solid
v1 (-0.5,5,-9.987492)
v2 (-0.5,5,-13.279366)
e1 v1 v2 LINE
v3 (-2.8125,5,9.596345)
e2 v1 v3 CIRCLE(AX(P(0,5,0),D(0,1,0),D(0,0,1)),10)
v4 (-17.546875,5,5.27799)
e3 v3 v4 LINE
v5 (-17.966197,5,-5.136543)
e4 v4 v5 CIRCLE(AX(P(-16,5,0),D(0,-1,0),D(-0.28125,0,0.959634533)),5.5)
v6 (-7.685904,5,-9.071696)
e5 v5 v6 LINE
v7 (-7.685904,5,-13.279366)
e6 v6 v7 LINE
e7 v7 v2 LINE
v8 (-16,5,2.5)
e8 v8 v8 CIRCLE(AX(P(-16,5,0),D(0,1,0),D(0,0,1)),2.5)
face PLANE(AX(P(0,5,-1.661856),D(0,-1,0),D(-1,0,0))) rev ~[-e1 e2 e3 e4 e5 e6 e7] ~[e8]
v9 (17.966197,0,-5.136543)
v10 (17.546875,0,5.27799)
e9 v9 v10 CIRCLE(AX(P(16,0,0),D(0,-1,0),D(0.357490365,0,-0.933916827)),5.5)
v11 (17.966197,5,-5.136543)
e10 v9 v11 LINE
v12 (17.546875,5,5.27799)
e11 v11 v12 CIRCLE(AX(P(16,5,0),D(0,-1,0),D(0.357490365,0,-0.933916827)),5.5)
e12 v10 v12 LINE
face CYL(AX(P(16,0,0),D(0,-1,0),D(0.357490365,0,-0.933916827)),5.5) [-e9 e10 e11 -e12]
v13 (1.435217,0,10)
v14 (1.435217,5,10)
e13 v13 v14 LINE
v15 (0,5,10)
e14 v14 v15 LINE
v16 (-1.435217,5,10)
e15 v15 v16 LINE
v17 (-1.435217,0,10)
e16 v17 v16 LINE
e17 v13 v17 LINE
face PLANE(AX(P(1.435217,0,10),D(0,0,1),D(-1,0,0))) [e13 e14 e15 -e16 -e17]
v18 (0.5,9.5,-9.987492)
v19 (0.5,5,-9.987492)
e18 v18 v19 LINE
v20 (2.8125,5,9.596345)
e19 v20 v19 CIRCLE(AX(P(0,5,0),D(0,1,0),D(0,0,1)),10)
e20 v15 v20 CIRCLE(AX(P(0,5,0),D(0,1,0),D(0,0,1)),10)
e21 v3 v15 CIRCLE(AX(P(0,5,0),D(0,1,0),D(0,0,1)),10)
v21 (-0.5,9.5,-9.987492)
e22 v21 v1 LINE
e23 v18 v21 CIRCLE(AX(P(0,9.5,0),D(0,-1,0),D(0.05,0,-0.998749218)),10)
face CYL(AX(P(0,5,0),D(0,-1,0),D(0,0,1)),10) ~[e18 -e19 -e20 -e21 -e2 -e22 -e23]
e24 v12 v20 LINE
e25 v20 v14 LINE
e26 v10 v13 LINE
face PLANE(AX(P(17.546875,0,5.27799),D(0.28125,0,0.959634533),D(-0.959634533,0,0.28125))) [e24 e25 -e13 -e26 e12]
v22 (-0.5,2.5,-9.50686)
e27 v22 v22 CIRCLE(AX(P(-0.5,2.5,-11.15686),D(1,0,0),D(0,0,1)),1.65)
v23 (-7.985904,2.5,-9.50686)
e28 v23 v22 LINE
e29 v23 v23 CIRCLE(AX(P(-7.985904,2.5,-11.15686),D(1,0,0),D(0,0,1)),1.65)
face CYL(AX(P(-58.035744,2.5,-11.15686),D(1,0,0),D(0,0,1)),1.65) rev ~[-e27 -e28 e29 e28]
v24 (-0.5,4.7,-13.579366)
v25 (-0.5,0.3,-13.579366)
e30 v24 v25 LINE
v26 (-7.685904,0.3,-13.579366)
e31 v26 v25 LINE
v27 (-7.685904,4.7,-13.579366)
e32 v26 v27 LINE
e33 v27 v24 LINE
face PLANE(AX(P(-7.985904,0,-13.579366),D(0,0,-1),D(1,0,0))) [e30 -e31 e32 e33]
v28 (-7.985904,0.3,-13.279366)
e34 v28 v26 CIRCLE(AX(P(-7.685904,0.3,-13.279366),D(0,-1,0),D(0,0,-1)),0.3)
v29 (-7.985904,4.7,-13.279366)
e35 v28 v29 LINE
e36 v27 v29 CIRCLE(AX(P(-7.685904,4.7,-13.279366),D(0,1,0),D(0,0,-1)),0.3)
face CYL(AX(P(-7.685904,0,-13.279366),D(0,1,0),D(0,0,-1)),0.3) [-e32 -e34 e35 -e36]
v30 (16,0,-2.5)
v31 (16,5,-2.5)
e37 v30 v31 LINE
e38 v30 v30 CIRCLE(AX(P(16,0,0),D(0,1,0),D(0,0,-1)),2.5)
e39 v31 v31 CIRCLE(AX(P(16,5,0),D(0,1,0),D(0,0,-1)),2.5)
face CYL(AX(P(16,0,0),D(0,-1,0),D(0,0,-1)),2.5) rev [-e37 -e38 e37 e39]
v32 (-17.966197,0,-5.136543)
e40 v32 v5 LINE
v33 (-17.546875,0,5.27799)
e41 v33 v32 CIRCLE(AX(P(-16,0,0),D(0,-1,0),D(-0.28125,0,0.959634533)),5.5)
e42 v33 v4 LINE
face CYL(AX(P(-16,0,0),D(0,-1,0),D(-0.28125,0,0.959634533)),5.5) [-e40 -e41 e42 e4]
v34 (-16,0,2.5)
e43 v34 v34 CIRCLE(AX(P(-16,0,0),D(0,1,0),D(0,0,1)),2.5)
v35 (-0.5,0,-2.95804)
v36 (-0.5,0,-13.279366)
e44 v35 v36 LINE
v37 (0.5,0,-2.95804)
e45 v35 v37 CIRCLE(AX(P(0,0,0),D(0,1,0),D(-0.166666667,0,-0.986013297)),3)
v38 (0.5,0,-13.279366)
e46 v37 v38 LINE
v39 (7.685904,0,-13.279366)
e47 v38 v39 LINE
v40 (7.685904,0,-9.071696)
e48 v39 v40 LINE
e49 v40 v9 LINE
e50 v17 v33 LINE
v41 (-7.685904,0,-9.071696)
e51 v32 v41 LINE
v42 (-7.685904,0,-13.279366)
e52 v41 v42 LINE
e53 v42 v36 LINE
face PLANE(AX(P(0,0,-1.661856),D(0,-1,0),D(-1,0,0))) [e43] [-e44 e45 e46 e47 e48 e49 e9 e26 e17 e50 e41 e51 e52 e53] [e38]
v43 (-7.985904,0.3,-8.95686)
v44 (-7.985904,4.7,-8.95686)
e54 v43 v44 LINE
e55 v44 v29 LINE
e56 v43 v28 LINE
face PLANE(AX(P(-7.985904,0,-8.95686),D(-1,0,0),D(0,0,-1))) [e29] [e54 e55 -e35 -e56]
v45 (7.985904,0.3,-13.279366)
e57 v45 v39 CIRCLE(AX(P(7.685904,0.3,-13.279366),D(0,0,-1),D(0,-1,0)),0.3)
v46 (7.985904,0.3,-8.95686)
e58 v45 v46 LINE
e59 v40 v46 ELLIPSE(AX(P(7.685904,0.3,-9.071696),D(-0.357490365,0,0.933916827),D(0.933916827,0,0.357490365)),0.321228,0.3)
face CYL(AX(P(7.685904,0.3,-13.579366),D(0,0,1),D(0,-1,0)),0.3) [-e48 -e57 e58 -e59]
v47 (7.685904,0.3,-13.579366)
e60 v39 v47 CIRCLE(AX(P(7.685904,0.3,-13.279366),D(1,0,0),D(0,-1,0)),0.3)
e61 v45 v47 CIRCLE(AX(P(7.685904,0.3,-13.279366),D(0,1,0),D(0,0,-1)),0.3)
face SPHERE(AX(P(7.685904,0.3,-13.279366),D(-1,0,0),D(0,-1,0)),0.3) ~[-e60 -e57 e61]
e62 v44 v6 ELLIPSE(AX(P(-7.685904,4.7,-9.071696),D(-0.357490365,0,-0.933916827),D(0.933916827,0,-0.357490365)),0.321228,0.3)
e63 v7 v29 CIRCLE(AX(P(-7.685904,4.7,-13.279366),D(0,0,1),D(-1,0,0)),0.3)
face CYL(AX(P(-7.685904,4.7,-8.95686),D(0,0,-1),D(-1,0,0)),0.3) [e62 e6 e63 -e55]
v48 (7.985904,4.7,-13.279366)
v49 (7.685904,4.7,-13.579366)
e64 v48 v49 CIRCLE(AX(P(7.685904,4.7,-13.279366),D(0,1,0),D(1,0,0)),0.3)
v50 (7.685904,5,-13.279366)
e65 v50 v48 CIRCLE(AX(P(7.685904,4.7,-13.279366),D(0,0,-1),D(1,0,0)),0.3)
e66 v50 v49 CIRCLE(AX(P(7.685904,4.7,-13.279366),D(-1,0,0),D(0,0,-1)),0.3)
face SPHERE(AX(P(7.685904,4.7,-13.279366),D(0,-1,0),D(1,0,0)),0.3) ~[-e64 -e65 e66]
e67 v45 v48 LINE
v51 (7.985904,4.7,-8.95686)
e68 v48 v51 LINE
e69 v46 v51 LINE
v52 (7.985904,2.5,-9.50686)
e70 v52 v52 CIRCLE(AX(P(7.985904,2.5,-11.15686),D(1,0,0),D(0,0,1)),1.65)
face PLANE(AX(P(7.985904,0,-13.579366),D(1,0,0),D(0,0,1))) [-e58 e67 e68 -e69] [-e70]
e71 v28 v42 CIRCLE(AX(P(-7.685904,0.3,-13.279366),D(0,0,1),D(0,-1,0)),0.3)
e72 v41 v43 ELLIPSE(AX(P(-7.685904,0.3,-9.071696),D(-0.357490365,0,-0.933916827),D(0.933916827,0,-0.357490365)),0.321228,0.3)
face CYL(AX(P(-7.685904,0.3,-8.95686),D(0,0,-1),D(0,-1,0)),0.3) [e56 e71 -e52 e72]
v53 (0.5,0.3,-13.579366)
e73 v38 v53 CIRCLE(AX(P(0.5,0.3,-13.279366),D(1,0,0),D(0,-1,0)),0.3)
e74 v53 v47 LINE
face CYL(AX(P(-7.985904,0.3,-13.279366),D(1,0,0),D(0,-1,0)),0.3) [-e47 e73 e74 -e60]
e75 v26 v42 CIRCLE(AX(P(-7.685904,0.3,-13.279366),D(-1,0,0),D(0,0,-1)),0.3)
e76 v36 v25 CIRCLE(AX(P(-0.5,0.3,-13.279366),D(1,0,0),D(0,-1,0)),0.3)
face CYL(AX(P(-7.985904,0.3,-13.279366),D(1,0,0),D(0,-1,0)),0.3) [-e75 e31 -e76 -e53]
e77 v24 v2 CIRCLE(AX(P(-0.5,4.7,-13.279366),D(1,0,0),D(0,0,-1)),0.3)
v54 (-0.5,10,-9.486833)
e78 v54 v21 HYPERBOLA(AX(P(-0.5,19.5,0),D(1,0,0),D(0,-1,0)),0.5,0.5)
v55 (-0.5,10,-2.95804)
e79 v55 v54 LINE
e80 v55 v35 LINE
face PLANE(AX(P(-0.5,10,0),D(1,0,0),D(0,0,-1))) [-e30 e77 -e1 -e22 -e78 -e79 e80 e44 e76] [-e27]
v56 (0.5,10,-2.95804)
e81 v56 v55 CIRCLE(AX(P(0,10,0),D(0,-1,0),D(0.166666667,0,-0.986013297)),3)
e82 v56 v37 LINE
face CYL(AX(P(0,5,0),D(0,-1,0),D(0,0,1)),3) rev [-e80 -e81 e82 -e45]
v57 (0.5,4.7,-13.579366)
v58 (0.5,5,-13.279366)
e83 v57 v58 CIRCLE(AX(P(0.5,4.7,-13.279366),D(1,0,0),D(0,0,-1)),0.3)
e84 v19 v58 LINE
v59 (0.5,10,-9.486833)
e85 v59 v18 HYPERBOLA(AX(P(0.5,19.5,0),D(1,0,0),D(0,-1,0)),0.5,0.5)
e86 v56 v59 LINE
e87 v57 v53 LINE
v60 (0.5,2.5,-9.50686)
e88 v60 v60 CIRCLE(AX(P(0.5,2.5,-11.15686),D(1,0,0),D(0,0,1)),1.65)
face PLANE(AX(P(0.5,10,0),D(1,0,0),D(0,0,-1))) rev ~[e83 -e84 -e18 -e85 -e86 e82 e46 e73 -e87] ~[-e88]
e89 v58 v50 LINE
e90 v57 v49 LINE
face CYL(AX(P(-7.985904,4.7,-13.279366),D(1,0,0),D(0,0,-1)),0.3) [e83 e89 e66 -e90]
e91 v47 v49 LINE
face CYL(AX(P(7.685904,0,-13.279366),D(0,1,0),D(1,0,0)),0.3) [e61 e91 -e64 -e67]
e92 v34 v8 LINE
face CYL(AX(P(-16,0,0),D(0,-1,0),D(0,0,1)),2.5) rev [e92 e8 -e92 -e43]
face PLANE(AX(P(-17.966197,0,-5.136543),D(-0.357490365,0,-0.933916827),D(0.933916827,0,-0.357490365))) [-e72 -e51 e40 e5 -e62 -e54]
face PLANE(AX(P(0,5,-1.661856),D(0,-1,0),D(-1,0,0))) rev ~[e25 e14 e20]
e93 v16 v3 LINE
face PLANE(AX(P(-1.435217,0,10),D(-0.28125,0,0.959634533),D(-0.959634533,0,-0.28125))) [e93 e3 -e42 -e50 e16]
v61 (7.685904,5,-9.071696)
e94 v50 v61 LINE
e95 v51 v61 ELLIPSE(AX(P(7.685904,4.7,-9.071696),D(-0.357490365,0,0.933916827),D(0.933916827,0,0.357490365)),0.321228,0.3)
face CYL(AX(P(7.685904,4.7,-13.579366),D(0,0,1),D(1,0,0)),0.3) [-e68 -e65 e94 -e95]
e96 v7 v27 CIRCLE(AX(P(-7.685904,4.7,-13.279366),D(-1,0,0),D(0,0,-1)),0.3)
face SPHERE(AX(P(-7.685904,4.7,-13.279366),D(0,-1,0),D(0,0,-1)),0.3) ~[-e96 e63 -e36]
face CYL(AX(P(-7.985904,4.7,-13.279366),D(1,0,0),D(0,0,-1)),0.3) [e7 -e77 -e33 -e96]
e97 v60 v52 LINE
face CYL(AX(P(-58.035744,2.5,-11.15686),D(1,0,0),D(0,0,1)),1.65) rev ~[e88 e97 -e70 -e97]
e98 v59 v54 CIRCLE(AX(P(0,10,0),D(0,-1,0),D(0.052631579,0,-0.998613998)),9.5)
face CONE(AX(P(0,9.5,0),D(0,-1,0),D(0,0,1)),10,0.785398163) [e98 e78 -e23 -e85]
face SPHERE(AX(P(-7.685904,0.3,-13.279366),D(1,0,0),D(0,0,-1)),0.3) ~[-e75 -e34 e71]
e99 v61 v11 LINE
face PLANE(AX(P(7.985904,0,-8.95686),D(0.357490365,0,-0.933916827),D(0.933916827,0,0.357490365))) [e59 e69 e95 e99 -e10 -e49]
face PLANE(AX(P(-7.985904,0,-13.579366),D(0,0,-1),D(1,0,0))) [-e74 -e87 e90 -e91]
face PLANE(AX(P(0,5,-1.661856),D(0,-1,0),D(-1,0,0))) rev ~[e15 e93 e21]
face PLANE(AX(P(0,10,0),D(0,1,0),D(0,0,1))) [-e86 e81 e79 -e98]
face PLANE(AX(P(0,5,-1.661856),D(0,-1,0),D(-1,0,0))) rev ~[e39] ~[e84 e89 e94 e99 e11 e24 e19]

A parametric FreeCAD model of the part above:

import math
import FreeCAD as App
import Part
import Sketcher
Q = App.Units.Quantity


def edges_at(feature, points):
    """Names of the edges that pass closest to the given points."""
    edges = feature.Shape.Edges
    near = lambda p: min(range(len(edges)), key=lambda i: edges[i].distToShape(Part.Vertex(*p))[0])
    return sorted({f"Edge{near(p) + 1}" for p in points})

doc = App.newDocument("Part")
body = doc.addObject("PartDesign::Body", "Body")

sketch1 = doc.addObject("Sketcher::SketchObject", "Sketch")
body.addObject(sketch1)
sketch1.AttachmentSupport = (doc.XZ_Plane, [""])
sketch1.MapMode = "FlatFace"
sketch1.addGeometry([
    Part.LineSegment(App.Vector(-8, -9, 0), App.Vector(-18, -5.1, 0)),
    Part.ArcOfCircle(Part.Circle(App.Vector(-16, 0, 0), App.Vector(0, 0, 1), 5.5), math.radians(106), math.radians(249)),
    Part.LineSegment(App.Vector(-17.5, 5.3, 0), App.Vector(-1.4, 10, 0)),
    Part.LineSegment(App.Vector(-1.4, 10, 0), App.Vector(1.4, 10, 0)),
    Part.LineSegment(App.Vector(1.4, 10, 0), App.Vector(17.5, 5.3, 0)),
    Part.ArcOfCircle(Part.Circle(App.Vector(16, 0, 0), App.Vector(0, 0, 1), 5.5), math.radians(-69), math.radians(74)),
    Part.LineSegment(App.Vector(18, -5.1, 0), App.Vector(8, -9, 0)),
    Part.LineSegment(App.Vector(8, -9, 0), App.Vector(8, -13.6, 0)),
    Part.LineSegment(App.Vector(8, -13.6, 0), App.Vector(-8, -13.6, 0)),
    Part.LineSegment(App.Vector(-8, -13.6, 0), App.Vector(-8, -9, 0)),
    Part.Circle(App.Vector(16, 0, 0), App.Vector(0, 0, 1), 2.5),
    Part.Circle(App.Vector(0, 0, 0), App.Vector(0, 0, 1), 3),
    Part.Circle(App.Vector(-16, 0, 0), App.Vector(0, 0, 1), 2.5),
], False)
sketch1.addConstraint([
    Sketcher.Constraint("Tangent", 0, 2, 1, 2),
    Sketcher.Constraint("Tangent", 1, 1, 2, 1),
    Sketcher.Constraint("Coincident", 2, 2, 3, 1),
    Sketcher.Constraint("Coincident", 3, 2, 4, 1),
    Sketcher.Constraint("Tangent", 4, 2, 5, 2),
    Sketcher.Constraint("Tangent", 5, 1, 6, 1),
    Sketcher.Constraint("Coincident", 6, 2, 7, 1),
    Sketcher.Constraint("Coincident", 7, 2, 8, 1),
    Sketcher.Constraint("Coincident", 8, 2, 9, 1),
    Sketcher.Constraint("Coincident", 9, 2, 0, 1),
    Sketcher.Constraint("Horizontal", 3),
    Sketcher.Constraint("Vertical", 7),
    Sketcher.Constraint("Horizontal", 8),
    Sketcher.Constraint("Vertical", 9),
    Sketcher.Constraint("Coincident", 11, 3, -1, 1),
    Sketcher.Constraint("Coincident", 10, 3, 5, 3),
    Sketcher.Constraint("Coincident", 12, 3, 1, 3),
    Sketcher.Constraint("Equal", 1, 5),
    Sketcher.Constraint("Equal", 10, 12),
    Sketcher.Constraint("Symmetric", 1, 3, 5, 3, -1, 1),
    Sketcher.Constraint("Symmetric", 1, 1, 4, 2, -2),
    Sketcher.Constraint("Symmetric", 6, 2, 9, 2, -2),
    Sketcher.Constraint("Diameter", 10, Q("5 mm")),
    Sketcher.Constraint("Diameter", 11, Q("6 mm")),
    Sketcher.Constraint("Radius", 1, Q("5.5 mm")),
    Sketcher.Constraint("DistanceX", 1, 3, -1, 1, Q("16 mm")),
    Sketcher.Constraint("DistanceY", -1, 1, 2, 2, Q("10 mm")),
    Sketcher.Constraint("Distance", 0, Q("10.68649 mm")),
    Sketcher.Constraint("Distance", 2, Q("16.789369 mm")),
    Sketcher.Constraint("DistanceX", 8, 2, 8, 1, Q("15.971808 mm")),
    Sketcher.Constraint("DistanceY", 7, 2, 7, 1, Q("4.622506 mm")),
])
pad1 = doc.addObject("PartDesign::Pad", "Pad")
body.addObject(pad1)
pad1.Profile = sketch1
pad1.Length = 5
pad1.Reversed = True

sketch2 = doc.addObject("Sketcher::SketchObject", "Sketch001")
body.addObject(sketch2)
sketch2.AttachmentSupport = (doc.XZ_Plane, [""])
sketch2.MapMode = "FlatFace"
sketch2.AttachmentOffset = App.Placement(App.Vector(0, 0, -5), App.Rotation())
sketch2.addGeometry([
    Part.Circle(App.Vector(0, 0, 0), App.Vector(0, 0, 1), 10),
    Part.Circle(App.Vector(0, 0, 0), App.Vector(0, 0, 1), 3),
], False)
sketch2.addConstraint([
    Sketcher.Constraint("Coincident", 0, 3, -1, 1),
    Sketcher.Constraint("Coincident", 1, 3, -1, 1),
    Sketcher.Constraint("Diameter", 0, Q("20 mm")),
    Sketcher.Constraint("Diameter", 1, Q("6 mm")),
])
pad2 = doc.addObject("PartDesign::Pad", "Pad001")
body.addObject(pad2)
pad2.Profile = sketch2
pad2.Length = 5
pad2.Reversed = True
doc.recompute()

fillet = doc.addObject("PartDesign::Fillet", "Fillet")
body.addObject(fillet)
fillet.Base = (pad2, edges_at(pad2, [
    (0, 0, -13.579),
    (7.986, 0, -11.268),
    (-7.986, 2.5, -13.579),
    (7.986, 2.5, -13.579),
    (7.986, 5, -11.268),
    (0, 5, -13.579),
    (-7.986, 5, -11.268),
    (-7.986, 0, -11.268),
]))
fillet.Radius = 0.3
doc.recompute()

chamfer = doc.addObject("PartDesign::Chamfer", "Chamfer")
body.addObject(chamfer)
chamfer.Base = (fillet, edges_at(fillet, [(0, 10, -10)]))
chamfer.Size = 0.5

sketch3 = doc.addObject("Sketcher::SketchObject", "Sketch002")
body.addObject(sketch3)
sketch3.AttachmentSupport = (doc.XZ_Plane, [""])
sketch3.MapMode = "FlatFace"
sketch3.AttachmentOffset = App.Placement(App.Vector(0, 0, -10), App.Rotation())
sketch3.addGeometry([
    Part.LineSegment(App.Vector(-0.5, -13.6, 0), App.Vector(-0.5, 0, 0)),
    Part.LineSegment(App.Vector(-0.5, 0, 0), App.Vector(0.5, 0, 0)),
    Part.LineSegment(App.Vector(0.5, 0, 0), App.Vector(0.5, -13.6, 0)),
    Part.LineSegment(App.Vector(0.5, -13.6, 0), App.Vector(-0.5, -13.6, 0)),
], False)
sketch3.addConstraint([
    Sketcher.Constraint("Coincident", 0, 2, 1, 1),
    Sketcher.Constraint("Coincident", 1, 2, 2, 1),
    Sketcher.Constraint("Coincident", 2, 2, 3, 1),
    Sketcher.Constraint("Coincident", 3, 2, 0, 1),
    Sketcher.Constraint("Vertical", 0),
    Sketcher.Constraint("Horizontal", 1),
    Sketcher.Constraint("Vertical", 2),
    Sketcher.Constraint("Horizontal", 3),
    Sketcher.Constraint("Symmetric", 0, 2, 1, 2, -1, 1),
    Sketcher.Constraint("DistanceX", 1, 1, 1, 2, Q("1 mm")),
    Sketcher.Constraint("DistanceY", 0, 1, 0, 2, Q("13.579366 mm")),
])
pocket1 = doc.addObject("PartDesign::Pocket", "Pocket")
body.addObject(pocket1)
pocket1.Profile = sketch3
pocket1.Type = "UpToFirst"
pocket1.Reversed = True

sketch4 = doc.addObject("Sketcher::SketchObject", "Sketch003")
body.addObject(sketch4)
sketch4.AttachmentSupport = (doc.YZ_Plane, [""])
sketch4.MapMode = "FlatFace"
sketch4.AttachmentOffset = App.Placement(App.Vector(0, 0, -7.985904), App.Rotation())
sketch4.addGeometry(Part.Circle(App.Vector(2.5, -11.2, 0), App.Vector(0, 0, 1), 1.6), False)
sketch4.addConstraint([
    Sketcher.Constraint("Diameter", 0, Q("3.3 mm")),
    Sketcher.Constraint("DistanceX", -1, 1, 0, 3, Q("2.5 mm")),
    Sketcher.Constraint("DistanceY", 0, 3, -1, 1, Q("11.15686 mm")),
])
doc.recompute()
hole = doc.addObject("PartDesign::Hole", "Hole")
body.addObject(hole)
hole.Profile = sketch4
hole.ThreadType = "None"
hole.Diameter = 3.3
hole.DepthType = "ThroughAll"
hole.Reversed = True

doc.recompute()
